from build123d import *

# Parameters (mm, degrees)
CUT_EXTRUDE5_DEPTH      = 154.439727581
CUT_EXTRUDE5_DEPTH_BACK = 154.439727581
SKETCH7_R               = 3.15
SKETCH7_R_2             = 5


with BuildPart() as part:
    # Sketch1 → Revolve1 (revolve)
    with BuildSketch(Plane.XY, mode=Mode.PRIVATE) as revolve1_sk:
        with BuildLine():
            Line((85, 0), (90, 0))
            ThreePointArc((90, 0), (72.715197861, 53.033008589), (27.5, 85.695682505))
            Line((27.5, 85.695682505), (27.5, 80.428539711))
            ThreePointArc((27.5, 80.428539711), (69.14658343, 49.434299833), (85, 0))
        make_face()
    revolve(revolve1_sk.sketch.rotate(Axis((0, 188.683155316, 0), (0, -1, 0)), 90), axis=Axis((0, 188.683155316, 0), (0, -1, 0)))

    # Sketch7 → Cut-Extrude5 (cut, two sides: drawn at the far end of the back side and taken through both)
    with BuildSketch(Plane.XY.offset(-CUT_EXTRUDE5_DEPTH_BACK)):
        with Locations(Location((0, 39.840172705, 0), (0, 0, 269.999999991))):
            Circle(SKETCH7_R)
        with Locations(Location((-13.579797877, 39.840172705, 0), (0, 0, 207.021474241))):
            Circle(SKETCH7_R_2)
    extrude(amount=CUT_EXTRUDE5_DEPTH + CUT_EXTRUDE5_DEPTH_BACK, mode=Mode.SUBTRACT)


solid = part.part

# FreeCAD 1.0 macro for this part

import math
import FreeCAD as App
import Part
import Sketcher
from FreeCAD import Vector

doc = App.newDocument("Part")
body = doc.addObject("PartDesign::Body", "Body")

# Sketch on XY plane
sketch1 = body.newObject("Sketcher::SketchObject", "Sketch")
sketch1.AttachmentSupport = (doc.getObject("XY_Plane"), [""])
sketch1.MapMode = "FlatFace"
sketch1.addGeometry([
    Part.LineSegment(Vector(85, 0, 0), Vector(90, 0, 0)),
    Part.ArcOfCircle(Part.Circle(Vector(0, 0, 0), Vector(0, 0, 1), 90), math.radians(0), math.radians(72)),
    Part.LineSegment(Vector(28, 86, 0), Vector(28, 80, 0)),
    Part.ArcOfCircle(Part.Circle(Vector(0, 0, 0), Vector(0, 0, 1), 85), math.radians(0), math.radians(71)),
], False)
sketch1.addConstraint([
    Sketcher.Constraint("Coincident", 0, 2, 1, 1),
    Sketcher.Constraint("Coincident", 1, 2, 2, 1),
    Sketcher.Constraint("Coincident", 2, 2, 3, 2),
    Sketcher.Constraint("Coincident", 3, 1, 0, 1),
    Sketcher.Constraint("Horizontal", 0),
    Sketcher.Constraint("Vertical", 2),
    Sketcher.Constraint("Coincident", 1, 3, -1, 1),
    Sketcher.Constraint("Coincident", 3, 3, -1, 1),
    Sketcher.Constraint("PointOnObject", 0, 2, -1),
    Sketcher.Constraint("Radius", 1, 90.0),
    Sketcher.Constraint("Radius", 3, 85.0),
    Sketcher.Constraint("DistanceX", -1, 1, 1, 2, 27.5),
])
revolution = body.newObject("PartDesign::Revolution", "Revolution")
revolution.Profile = sketch1
revolution.ReferenceAxis = (sketch1, ["V_Axis"])
revolution.Angle = 360

# Sketch on XY plane
sketch2 = body.newObject("Sketcher::SketchObject", "Sketch001")
sketch2.AttachmentSupport = (doc.getObject("XY_Plane"), [""])
sketch2.MapMode = "FlatFace"
sketch2.addGeometry([
    Part.Circle(Vector(0, 39.8, 0), Vector(0, 0, 1), 3.1),
    Part.Circle(Vector(-13.6, 39.8, 0), Vector(0, 0, 1), 5),
], False)
sketch2.addConstraint([
    Sketcher.Constraint("PointOnObject", 0, 3, -2),
    Sketcher.Constraint("Horizontal", 0, 3, 1, 3),
    Sketcher.Constraint("Diameter", 1, 10.0),
    Sketcher.Constraint("Diameter", 0, 6.3),
    Sketcher.Constraint("DistanceY", -1, 1, 0, 3, 39.840173),
    Sketcher.Constraint("DistanceX", 1, 3, -1, 1, 13.579798),
])
pocket1 = body.newObject("PartDesign::Pocket", "Pocket")
pocket1.Profile = sketch2
pocket1.Type = "ThroughAll"
pocket1.Midplane = True

doc.recompute()
